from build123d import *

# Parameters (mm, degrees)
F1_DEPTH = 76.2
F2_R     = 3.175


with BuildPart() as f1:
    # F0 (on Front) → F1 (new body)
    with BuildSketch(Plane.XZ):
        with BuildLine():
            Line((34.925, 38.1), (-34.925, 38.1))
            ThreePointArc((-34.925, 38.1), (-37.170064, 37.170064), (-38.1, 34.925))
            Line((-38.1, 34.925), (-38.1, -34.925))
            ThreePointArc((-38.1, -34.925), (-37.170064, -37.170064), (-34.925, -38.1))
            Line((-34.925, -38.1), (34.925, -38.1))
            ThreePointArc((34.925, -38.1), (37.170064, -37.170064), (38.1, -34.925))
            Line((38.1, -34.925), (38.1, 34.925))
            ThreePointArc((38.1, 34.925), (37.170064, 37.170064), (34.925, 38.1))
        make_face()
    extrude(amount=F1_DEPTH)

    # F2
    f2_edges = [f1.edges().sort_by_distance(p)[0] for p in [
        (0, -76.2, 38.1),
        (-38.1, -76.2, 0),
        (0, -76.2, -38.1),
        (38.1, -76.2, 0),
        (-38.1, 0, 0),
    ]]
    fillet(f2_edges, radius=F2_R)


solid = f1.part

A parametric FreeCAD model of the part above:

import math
import FreeCAD as App
import Part
import Sketcher

V = App.Vector
Q = App.Units.Quantity


def edges_at(feature, points):
    """Names of the edges that pass closest to the given points."""
    edges = feature.Shape.Edges
    near = lambda p: min(range(len(edges)), key=lambda i: edges[i].distToShape(Part.Vertex(*p))[0])
    return sorted({f"Edge{near(p) + 1}" for p in points})

doc = App.newDocument("Part")
params = doc.addObject("Spreadsheet::Sheet", "Params")
for row, (alias, value) in enumerate([
    ("sketch1_radius", "0.125 in"),
    ("sketch1_width", "2.75 in"),
    ("pad1_length", "3 in"),
    ("fillet_radius", "0.125 in"),
], start=1):
    params.set(f"A{row}", alias)
    params.set(f"B{row}", "=" + value)
    params.setAlias(f"B{row}", alias)

body = doc.addObject("PartDesign::Body", "Body")

# Sketch on XZ plane
sketch1 = body.newObject("Sketcher::SketchObject", "Sketch")
sketch1.AttachmentSupport = (doc.getObject("XZ_Plane"), [""])
sketch1.MapMode = "FlatFace"
sketch1.addGeometry([
    Part.LineSegment(V(34.925, 38.1, 0), V(-34.925, 38.1, 0)),  # 0
    Part.ArcOfCircle(Part.Circle(V(-34.925, 34.925, 0), V(0, 0, 1), 3.175), math.radians(90.000002), math.radians(179.999998)),  # 1
    Part.LineSegment(V(-38.1, 34.925, 0), V(-38.1, -34.925, 0)),  # 2
    Part.ArcOfCircle(Part.Circle(V(-34.925, -34.925, 0), V(0, 0, 1), 3.175), math.radians(-179.999998), math.radians(-90.000002)),  # 3
    Part.LineSegment(V(-34.925, -38.1, 0), V(34.925, -38.1, 0)),  # 4
    Part.ArcOfCircle(Part.Circle(V(34.925, -34.925, 0), V(0, 0, 1), 3.175), math.radians(-89.999998), math.radians(-0.000002)),  # 5
    Part.LineSegment(V(38.1, -34.925, 0), V(38.1, 34.925, 0)),  # 6
    Part.ArcOfCircle(Part.Circle(V(34.925, 34.925, 0), V(0, 0, 1), 3.175), math.radians(0.000002), math.radians(89.999998)),  # 7
], False)
sketch1.addConstraint([
    Sketcher.Constraint("Tangent", 0, 2, 1, 1),
    Sketcher.Constraint("Tangent", 1, 2, 2, 1),
    Sketcher.Constraint("Tangent", 2, 2, 3, 1),
    Sketcher.Constraint("Tangent", 3, 2, 4, 1),
    Sketcher.Constraint("Tangent", 4, 2, 5, 1),
    Sketcher.Constraint("Tangent", 5, 2, 6, 1),
    Sketcher.Constraint("Tangent", 6, 2, 7, 1),
    Sketcher.Constraint("Tangent", 7, 2, 0, 1),
    Sketcher.Constraint("Horizontal", 0),
    Sketcher.Constraint("Vertical", 2),
    Sketcher.Constraint("Horizontal", 4),
    Sketcher.Constraint("Vertical", 6),
    Sketcher.Constraint("Equal", 1, 3),
    Sketcher.Constraint("Equal", 3, 5),
    Sketcher.Constraint("Equal", 5, 7),
    Sketcher.Constraint("Symmetric", 1, 3, 5, 3, -1, 1),
    Sketcher.Constraint("Equal", 4, 2),
    Sketcher.Constraint("Radius", 1, Q("0.125 in")),
    Sketcher.Constraint("DistanceX", 0, 2, 0, 1, Q("2.75 in")),
])
sketch1.setExpression("Constraints[17]", "Params.sketch1_radius")
sketch1.setExpression("Constraints[18]", "Params.sketch1_width")
pad1 = body.newObject("PartDesign::Pad", "Pad")
pad1.Profile = sketch1
pad1.setExpression("Length", "Params.pad1_length")
doc.recompute()

fillet = body.newObject("PartDesign::Fillet", "Fillet")
fillet.Base = (pad1, edges_at(pad1, [
    (0, -76.2, 38.1),
    (-38.1, -76.2, 0),
    (0, -76.2, -38.1),
    (38.1, -76.2, 0),
    (-38.1, 0, 0),
]))
fillet.setExpression("Radius", "Params.fillet_radius")

doc.recompute()
